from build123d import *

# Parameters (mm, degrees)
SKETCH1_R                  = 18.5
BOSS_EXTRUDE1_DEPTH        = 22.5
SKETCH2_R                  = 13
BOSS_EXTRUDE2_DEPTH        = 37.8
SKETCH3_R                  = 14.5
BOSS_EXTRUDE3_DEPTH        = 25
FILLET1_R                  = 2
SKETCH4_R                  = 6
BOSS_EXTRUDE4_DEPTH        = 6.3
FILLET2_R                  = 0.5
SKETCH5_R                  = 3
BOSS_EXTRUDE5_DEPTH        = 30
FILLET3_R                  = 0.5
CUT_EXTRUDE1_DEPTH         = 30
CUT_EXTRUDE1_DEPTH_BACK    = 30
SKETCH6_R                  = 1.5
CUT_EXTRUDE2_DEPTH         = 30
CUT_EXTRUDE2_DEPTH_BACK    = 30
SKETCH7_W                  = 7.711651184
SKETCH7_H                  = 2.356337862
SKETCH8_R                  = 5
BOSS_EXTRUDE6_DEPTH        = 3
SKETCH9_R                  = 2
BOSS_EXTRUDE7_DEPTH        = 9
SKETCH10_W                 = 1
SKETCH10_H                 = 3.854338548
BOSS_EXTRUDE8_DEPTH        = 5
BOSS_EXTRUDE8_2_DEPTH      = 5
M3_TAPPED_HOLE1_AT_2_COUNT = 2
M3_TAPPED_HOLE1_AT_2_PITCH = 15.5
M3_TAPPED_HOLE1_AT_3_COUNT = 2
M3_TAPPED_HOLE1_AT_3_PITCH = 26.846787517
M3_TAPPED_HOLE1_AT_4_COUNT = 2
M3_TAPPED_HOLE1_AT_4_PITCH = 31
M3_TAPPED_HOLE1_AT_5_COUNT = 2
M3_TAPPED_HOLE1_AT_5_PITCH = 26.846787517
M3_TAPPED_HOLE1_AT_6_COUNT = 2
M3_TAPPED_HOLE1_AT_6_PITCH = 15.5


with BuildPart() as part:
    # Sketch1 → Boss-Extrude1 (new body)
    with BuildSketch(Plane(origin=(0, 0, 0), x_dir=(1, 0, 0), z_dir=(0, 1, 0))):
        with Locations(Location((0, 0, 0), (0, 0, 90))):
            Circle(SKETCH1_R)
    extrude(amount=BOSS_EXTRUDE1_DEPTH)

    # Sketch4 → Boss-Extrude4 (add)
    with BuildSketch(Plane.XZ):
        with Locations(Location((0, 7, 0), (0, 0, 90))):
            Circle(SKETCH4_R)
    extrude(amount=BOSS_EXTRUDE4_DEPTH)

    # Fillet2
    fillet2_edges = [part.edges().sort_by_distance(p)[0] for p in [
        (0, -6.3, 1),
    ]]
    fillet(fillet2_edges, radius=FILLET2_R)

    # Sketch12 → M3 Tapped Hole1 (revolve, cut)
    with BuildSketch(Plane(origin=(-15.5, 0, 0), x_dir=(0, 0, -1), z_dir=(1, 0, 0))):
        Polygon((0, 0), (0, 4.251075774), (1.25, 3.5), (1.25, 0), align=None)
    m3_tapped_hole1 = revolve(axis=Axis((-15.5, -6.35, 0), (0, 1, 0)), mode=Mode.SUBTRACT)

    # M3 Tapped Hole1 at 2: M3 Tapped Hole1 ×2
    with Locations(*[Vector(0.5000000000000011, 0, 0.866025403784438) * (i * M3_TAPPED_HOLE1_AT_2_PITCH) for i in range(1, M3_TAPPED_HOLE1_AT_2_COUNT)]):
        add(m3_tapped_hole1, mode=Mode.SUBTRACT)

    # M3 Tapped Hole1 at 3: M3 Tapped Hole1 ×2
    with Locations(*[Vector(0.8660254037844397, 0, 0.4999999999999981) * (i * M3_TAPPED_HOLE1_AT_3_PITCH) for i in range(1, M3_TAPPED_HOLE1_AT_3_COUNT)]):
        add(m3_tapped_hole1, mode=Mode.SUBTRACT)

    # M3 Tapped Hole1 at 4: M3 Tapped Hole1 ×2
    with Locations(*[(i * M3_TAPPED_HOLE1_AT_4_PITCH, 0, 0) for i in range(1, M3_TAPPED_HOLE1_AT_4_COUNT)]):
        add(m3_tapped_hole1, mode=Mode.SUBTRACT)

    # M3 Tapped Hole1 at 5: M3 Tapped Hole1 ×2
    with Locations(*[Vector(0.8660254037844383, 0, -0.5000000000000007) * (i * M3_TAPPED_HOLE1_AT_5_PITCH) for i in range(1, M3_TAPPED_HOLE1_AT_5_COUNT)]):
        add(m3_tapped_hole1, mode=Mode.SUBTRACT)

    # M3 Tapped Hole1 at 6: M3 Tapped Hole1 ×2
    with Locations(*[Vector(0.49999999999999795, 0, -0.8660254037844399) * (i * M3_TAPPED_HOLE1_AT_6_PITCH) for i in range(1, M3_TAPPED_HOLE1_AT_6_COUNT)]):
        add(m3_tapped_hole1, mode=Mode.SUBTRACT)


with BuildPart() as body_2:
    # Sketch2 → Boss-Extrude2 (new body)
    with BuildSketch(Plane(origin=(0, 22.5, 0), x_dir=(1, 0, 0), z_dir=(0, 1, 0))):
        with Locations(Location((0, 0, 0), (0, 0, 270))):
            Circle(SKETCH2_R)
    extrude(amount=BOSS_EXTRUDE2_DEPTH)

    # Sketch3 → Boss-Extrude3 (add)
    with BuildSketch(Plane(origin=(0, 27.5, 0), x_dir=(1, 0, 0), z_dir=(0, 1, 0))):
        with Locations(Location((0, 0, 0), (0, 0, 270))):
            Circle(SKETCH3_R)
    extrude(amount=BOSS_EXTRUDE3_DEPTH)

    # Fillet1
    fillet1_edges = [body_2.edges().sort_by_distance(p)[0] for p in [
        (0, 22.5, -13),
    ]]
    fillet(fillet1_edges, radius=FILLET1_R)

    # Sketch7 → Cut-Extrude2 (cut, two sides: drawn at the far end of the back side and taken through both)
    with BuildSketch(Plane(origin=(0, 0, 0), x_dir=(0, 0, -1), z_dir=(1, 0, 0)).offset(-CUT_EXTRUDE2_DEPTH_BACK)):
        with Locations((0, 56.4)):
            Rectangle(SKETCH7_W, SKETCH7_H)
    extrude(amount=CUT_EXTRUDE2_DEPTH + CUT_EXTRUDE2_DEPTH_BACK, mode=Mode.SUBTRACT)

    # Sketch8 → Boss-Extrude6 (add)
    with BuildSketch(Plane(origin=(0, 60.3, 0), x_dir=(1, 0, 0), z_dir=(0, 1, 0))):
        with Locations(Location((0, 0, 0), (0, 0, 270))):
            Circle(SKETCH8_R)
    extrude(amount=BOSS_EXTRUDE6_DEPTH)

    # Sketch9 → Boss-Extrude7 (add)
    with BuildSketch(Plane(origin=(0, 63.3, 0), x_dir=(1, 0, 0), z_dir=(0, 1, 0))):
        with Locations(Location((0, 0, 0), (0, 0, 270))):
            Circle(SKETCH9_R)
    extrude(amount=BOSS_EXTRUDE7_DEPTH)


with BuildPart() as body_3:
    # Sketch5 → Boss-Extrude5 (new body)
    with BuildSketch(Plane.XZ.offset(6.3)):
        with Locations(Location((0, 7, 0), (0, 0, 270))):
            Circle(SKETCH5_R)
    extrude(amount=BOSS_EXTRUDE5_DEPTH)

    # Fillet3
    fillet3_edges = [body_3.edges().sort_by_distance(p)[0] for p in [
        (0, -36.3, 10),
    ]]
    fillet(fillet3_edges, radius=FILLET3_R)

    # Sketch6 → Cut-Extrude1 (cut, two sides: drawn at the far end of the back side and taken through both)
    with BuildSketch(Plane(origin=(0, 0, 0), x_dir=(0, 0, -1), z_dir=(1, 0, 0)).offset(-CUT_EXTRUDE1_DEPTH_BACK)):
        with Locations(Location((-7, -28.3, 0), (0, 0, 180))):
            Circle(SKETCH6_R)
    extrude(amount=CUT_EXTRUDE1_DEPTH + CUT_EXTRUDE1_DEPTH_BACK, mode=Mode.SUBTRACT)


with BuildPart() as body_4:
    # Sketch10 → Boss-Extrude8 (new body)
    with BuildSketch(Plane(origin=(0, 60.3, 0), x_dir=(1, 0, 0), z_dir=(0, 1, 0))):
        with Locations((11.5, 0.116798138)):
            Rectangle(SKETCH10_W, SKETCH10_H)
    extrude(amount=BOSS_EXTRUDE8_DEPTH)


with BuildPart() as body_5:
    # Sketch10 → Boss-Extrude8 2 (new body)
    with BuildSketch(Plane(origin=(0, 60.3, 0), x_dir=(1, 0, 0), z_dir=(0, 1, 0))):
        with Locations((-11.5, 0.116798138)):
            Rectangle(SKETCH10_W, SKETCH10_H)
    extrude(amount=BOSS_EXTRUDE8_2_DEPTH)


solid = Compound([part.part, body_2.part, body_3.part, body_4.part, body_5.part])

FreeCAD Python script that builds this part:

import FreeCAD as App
import Part
import Sketcher

V = App.Vector
Q = App.Units.Quantity


def edges_at(feature, points):
    """Names of the edges that pass closest to the given points."""
    edges = feature.Shape.Edges
    near = lambda p: min(range(len(edges)), key=lambda i: edges[i].distToShape(Part.Vertex(*p))[0])
    return sorted({f"Edge{near(p) + 1}" for p in points})

doc = App.newDocument("Part")
body = doc.addObject("PartDesign::Body", "Body")

sketch1 = doc.addObject("Sketcher::SketchObject", "Sketch")
body.addObject(sketch1)
sketch1.AttachmentSupport = (doc.XZ_Plane, [""])
sketch1.MapMode = "FlatFace"
sketch1.addGeometry(Part.Circle(V(0, 0, 0), V(0, 0, 1), 18), False)
sketch1.addConstraint([
    Sketcher.Constraint("Coincident", 0, 3, -1, 1),
    Sketcher.Constraint("Diameter", 0, 37.0),
])
pad1 = doc.addObject("PartDesign::Pad", "Pad")
body.addObject(pad1)
pad1.Profile = sketch1
pad1.Length = 22.5
pad1.Reversed = True

sketch2 = doc.addObject("Sketcher::SketchObject", "Sketch001")
body.addObject(sketch2)
sketch2.AttachmentSupport = (doc.XZ_Plane, [""])
sketch2.MapMode = "FlatFace"
sketch2.addGeometry(Part.Circle(V(0, 7, 0), V(0, 0, 1), 6), False)
sketch2.addConstraint([
    Sketcher.Constraint("PointOnObject", 0, 3, -2),
    Sketcher.Constraint("Diameter", 0, 12.0),
    Sketcher.Constraint("DistanceY", -1, 1, 0, 3, 7.0),
])
pad2 = doc.addObject("PartDesign::Pad", "Pad001")
body.addObject(pad2)
pad2.Profile = sketch2
pad2.Length = 6.3
doc.recompute()

fillet = doc.addObject("PartDesign::Fillet", "Fillet")
body.addObject(fillet)
fillet.Base = (pad2, edges_at(pad2, [(0, -6.3, 1)]))
fillet.Radius = 0.5

sketch3 = doc.addObject("Sketcher::SketchObject", "Sketch002")
body.addObject(sketch3)
sketch3.AttachmentSupport = (doc.YZ_Plane, [""])
sketch3.MapMode = "FlatFace"
sketch3.AttachmentOffset = App.Placement(V(0, 0, -15.5), App.Rotation())
sketch3.addGeometry([
    Part.LineSegment(V(4.3, 0, 0), V(0, 0, 0)),
    Part.LineSegment(V(0, 0, 0), V(0, -1.2, 0)),
    Part.LineSegment(V(0, -1.2, 0), V(3.5, -1.2, 0)),
    Part.LineSegment(V(3.5, -1.2, 0), V(4.3, 0, 0)),
], False)
sketch3.addConstraint([
    Sketcher.Constraint("Coincident", 0, 2, 1, 1),
    Sketcher.Constraint("Coincident", 1, 2, 2, 1),
    Sketcher.Constraint("Coincident", 2, 2, 3, 1),
    Sketcher.Constraint("Coincident", 3, 2, 0, 1),
    Sketcher.Constraint("Horizontal", 0),
    Sketcher.Constraint("Vertical", 1),
    Sketcher.Constraint("Horizontal", 2),
    Sketcher.Constraint("Coincident", 0, 2, -1, 1),
    Sketcher.Constraint("Angle", 3, Q("59 deg")),
    Sketcher.Constraint("DistanceX", 2, 1, 2, 2, 3.5),
    Sketcher.Constraint("DistanceY", 1, 2, 1, 1, 1.25),
])
groove = doc.addObject("PartDesign::Groove", "Groove")
body.addObject(groove)
groove.Profile = sketch3
groove.ReferenceAxis = (sketch3, ["H_Axis"])
groove.Angle = 360
doc.recompute()

datumline = doc.addObject("PartDesign::Line", "DatumLine")
body.addObject(datumline)
datumline.Placement = App.Placement(V(0, 0, 0), App.Rotation(V(0, 0, 1), V(0.5, 0, 0.866025404)))
linearpattern = doc.addObject("PartDesign::LinearPattern", "LinearPattern")
body.addObject(linearpattern)
linearpattern.Originals = [groove]
linearpattern.Direction = (datumline, [""])
linearpattern.Mode = "offset"
linearpattern.Offset = 15.5
linearpattern.Occurrences = 2
body.Tip = linearpattern
doc.recompute()

datumline2 = doc.addObject("PartDesign::Line", "DatumLine001")
body.addObject(datumline2)
datumline2.Placement = App.Placement(V(0, 0, 0), App.Rotation(V(0, 0, 1), V(0.866025404, 0, 0.5)))
linearpattern2 = doc.addObject("PartDesign::LinearPattern", "LinearPattern001")
body.addObject(linearpattern2)
linearpattern2.Originals = [groove]
linearpattern2.Direction = (datumline2, [""])
linearpattern2.Mode = "offset"
linearpattern2.Offset = 26.846788
linearpattern2.Occurrences = 2
body.Tip = linearpattern2
doc.recompute()

linearpattern3 = doc.addObject("PartDesign::LinearPattern", "LinearPattern002")
body.addObject(linearpattern3)
linearpattern3.Originals = [groove]
linearpattern3.Direction = (doc.X_Axis, [""])
linearpattern3.Mode = "offset"
linearpattern3.Offset = 31
linearpattern3.Occurrences = 2
body.Tip = linearpattern3
doc.recompute()

datumline3 = doc.addObject("PartDesign::Line", "DatumLine002")
body.addObject(datumline3)
datumline3.Placement = App.Placement(V(0, 0, 0), App.Rotation(V(0, 0, 1), V(0.866025404, 0, -0.5)))
linearpattern4 = doc.addObject("PartDesign::LinearPattern", "LinearPattern003")
body.addObject(linearpattern4)
linearpattern4.Originals = [groove]
linearpattern4.Direction = (datumline3, [""])
linearpattern4.Mode = "offset"
linearpattern4.Offset = 26.846788
linearpattern4.Occurrences = 2
body.Tip = linearpattern4
doc.recompute()

datumline4 = doc.addObject("PartDesign::Line", "DatumLine003")
body.addObject(datumline4)
datumline4.Placement = App.Placement(V(0, 0, 0), App.Rotation(V(0, 0, 1), V(0.5, 0, -0.866025404)))
linearpattern5 = doc.addObject("PartDesign::LinearPattern", "LinearPattern004")
body.addObject(linearpattern5)
linearpattern5.Originals = [groove]
linearpattern5.Direction = (datumline4, [""])
linearpattern5.Mode = "offset"
linearpattern5.Offset = 15.5
linearpattern5.Occurrences = 2
body.Tip = linearpattern5
body2 = doc.addObject("PartDesign::Body", "Body001")

sketch4 = doc.addObject("Sketcher::SketchObject", "Sketch003")
body2.addObject(sketch4)
sketch4.AttachmentSupport = (doc.getObject("XZ_Plane001"), [""])
sketch4.MapMode = "FlatFace"
sketch4.AttachmentOffset = App.Placement(V(0, 0, -22.5), App.Rotation())
sketch4.addGeometry(Part.Circle(V(0, 0, 0), V(0, 0, 1), 13), False)
sketch4.addConstraint([
    Sketcher.Constraint("Coincident", 0, 3, -1, 1),
    Sketcher.Constraint("Diameter", 0, 26.0),
])
pad3 = doc.addObject("PartDesign::Pad", "Pad002")
body2.addObject(pad3)
pad3.Profile = sketch4
pad3.Length = 37.8
pad3.Reversed = True

sketch5 = doc.addObject("Sketcher::SketchObject", "Sketch004")
body2.addObject(sketch5)
sketch5.AttachmentSupport = (doc.getObject("XZ_Plane001"), [""])
sketch5.MapMode = "FlatFace"
sketch5.AttachmentOffset = App.Placement(V(0, 0, -27.5), App.Rotation())
sketch5.addGeometry(Part.Circle(V(0, 0, 0), V(0, 0, 1), 14), False)
sketch5.addConstraint([
    Sketcher.Constraint("Coincident", 0, 3, -1, 1),
    Sketcher.Constraint("Diameter", 0, 29.0),
])
pad4 = doc.addObject("PartDesign::Pad", "Pad003")
body2.addObject(pad4)
pad4.Profile = sketch5
pad4.Length = 25
pad4.Reversed = True
doc.recompute()

fillet2 = doc.addObject("PartDesign::Fillet", "Fillet001")
body2.addObject(fillet2)
fillet2.Base = (pad4, edges_at(pad4, [(0, 22.5, -13)]))
fillet2.Radius = 2

sketch6 = doc.addObject("Sketcher::SketchObject", "Sketch005")
body2.addObject(sketch6)
sketch6.AttachmentSupport = (doc.getObject("YZ_Plane001"), [""])
sketch6.MapMode = "FlatFace"
sketch6.addGeometry([
    Part.LineSegment(V(57.6, 3.9, 0), V(55.2, 3.9, 0)),
    Part.LineSegment(V(55.2, 3.9, 0), V(55.2, -3.9, 0)),
    Part.LineSegment(V(55.2, -3.9, 0), V(57.6, -3.9, 0)),
    Part.LineSegment(V(57.6, -3.9, 0), V(57.6, 3.9, 0)),
], False)
sketch6.addConstraint([
    Sketcher.Constraint("Coincident", 0, 2, 1, 1),
    Sketcher.Constraint("Coincident", 1, 2, 2, 1),
    Sketcher.Constraint("Coincident", 2, 2, 3, 1),
    Sketcher.Constraint("Coincident", 3, 2, 0, 1),
    Sketcher.Constraint("Horizontal", 0),
    Sketcher.Constraint("Vertical", 1),
    Sketcher.Constraint("Horizontal", 2),
    Sketcher.Constraint("Vertical", 3),
    Sketcher.Constraint("DistanceY", 1, 2, 1, 1, 7.711651),
    Sketcher.Constraint("DistanceX", 0, 2, 0, 1, 2.356338),
    Sketcher.Constraint("DistanceX", -1, 1, 0, 2, 55.221831),
    Sketcher.Constraint("DistanceY", -1, 1, 0, 2, 3.855826),
])
pocket1 = doc.addObject("PartDesign::Pocket", "Pocket")
body2.addObject(pocket1)
pocket1.Profile = sketch6
pocket1.Type = "ThroughAll"
pocket1.Midplane = True

sketch7 = doc.addObject("Sketcher::SketchObject", "Sketch006")
body2.addObject(sketch7)
sketch7.AttachmentSupport = (doc.getObject("XZ_Plane001"), [""])
sketch7.MapMode = "FlatFace"
sketch7.AttachmentOffset = App.Placement(V(0, 0, -60.3), App.Rotation())
sketch7.addGeometry(Part.Circle(V(0, 0, 0), V(0, 0, 1), 5), False)
sketch7.addConstraint([
    Sketcher.Constraint("Coincident", 0, 3, -1, 1),
    Sketcher.Constraint("Diameter", 0, 10.0),
])
pad5 = doc.addObject("PartDesign::Pad", "Pad004")
body2.addObject(pad5)
pad5.Profile = sketch7
pad5.Length = 3
pad5.Reversed = True

sketch8 = doc.addObject("Sketcher::SketchObject", "Sketch007")
body2.addObject(sketch8)
sketch8.AttachmentSupport = (doc.getObject("XZ_Plane001"), [""])
sketch8.MapMode = "FlatFace"
sketch8.AttachmentOffset = App.Placement(V(0, 0, -63.3), App.Rotation())
sketch8.addGeometry(Part.Circle(V(0, 0, 0), V(0, 0, 1), 2), False)
sketch8.addConstraint([
    Sketcher.Constraint("Coincident", 0, 3, -1, 1),
    Sketcher.Constraint("Diameter", 0, 4.0),
])
pad6 = doc.addObject("PartDesign::Pad", "Pad005")
body2.addObject(pad6)
pad6.Profile = sketch8
pad6.Length = 9
pad6.Reversed = True
body3 = doc.addObject("PartDesign::Body", "Body002")

sketch9 = doc.addObject("Sketcher::SketchObject", "Sketch008")
body3.addObject(sketch9)
sketch9.AttachmentSupport = (doc.getObject("XZ_Plane002"), [""])
sketch9.MapMode = "FlatFace"
sketch9.AttachmentOffset = App.Placement(V(0, 0, 6.3), App.Rotation())
sketch9.addGeometry(Part.Circle(V(0, 7, 0), V(0, 0, 1), 3), False)
sketch9.addConstraint([
    Sketcher.Constraint("PointOnObject", 0, 3, -2),
    Sketcher.Constraint("Diameter", 0, 6.0),
    Sketcher.Constraint("DistanceY", -1, 1, 0, 3, 7.0),
])
pad7 = doc.addObject("PartDesign::Pad", "Pad006")
body3.addObject(pad7)
pad7.Profile = sketch9
pad7.Length = 30
doc.recompute()

fillet3 = doc.addObject("PartDesign::Fillet", "Fillet002")
body3.addObject(fillet3)
fillet3.Base = (pad7, edges_at(pad7, [(0, -36.3, 10)]))
fillet3.Radius = 0.5

sketch10 = doc.addObject("Sketcher::SketchObject", "Sketch009")
body3.addObject(sketch10)
sketch10.AttachmentSupport = (doc.getObject("YZ_Plane002"), [""])
sketch10.MapMode = "FlatFace"
sketch10.addGeometry(Part.Circle(V(-28.3, 7, 0), V(0, 0, 1), 1.5), False)
sketch10.addConstraint([
    Sketcher.Constraint("Diameter", 0, 3.0),
    Sketcher.Constraint("DistanceY", -1, 1, 0, 3, 7.0),
    Sketcher.Constraint("DistanceX", 0, 3, -1, 1, 28.3),
])
pocket2 = doc.addObject("PartDesign::Pocket", "Pocket001")
body3.addObject(pocket2)
pocket2.Profile = sketch10
pocket2.Type = "ThroughAll"
pocket2.Midplane = True
body4 = doc.addObject("PartDesign::Body", "Body003")

sketch11 = doc.addObject("Sketcher::SketchObject", "Sketch010")
body4.addObject(sketch11)
sketch11.AttachmentSupport = (doc.getObject("XZ_Plane003"), [""])
sketch11.MapMode = "FlatFace"
sketch11.AttachmentOffset = App.Placement(V(0, 0, -60.3), App.Rotation())
sketch11.addGeometry([
    Part.LineSegment(V(11, -2, 0), V(11, 1.8, 0)),
    Part.LineSegment(V(11, 1.8, 0), V(12, 1.8, 0)),
    Part.LineSegment(V(12, 1.8, 0), V(12, -2, 0)),
    Part.LineSegment(V(12, -2, 0), V(11, -2, 0)),
], False)
sketch11.addConstraint([
    Sketcher.Constraint("Coincident", 0, 2, 1, 1),
    Sketcher.Constraint("Coincident", 1, 2, 2, 1),
    Sketcher.Constraint("Coincident", 2, 2, 3, 1),
    Sketcher.Constraint("Coincident", 3, 2, 0, 1),
    Sketcher.Constraint("Vertical", 0),
    Sketcher.Constraint("Horizontal", 1),
    Sketcher.Constraint("Vertical", 2),
    Sketcher.Constraint("Horizontal", 3),
    Sketcher.Constraint("DistanceX", 1, 1, 1, 2, 1.0),
    Sketcher.Constraint("DistanceX", -1, 1, 0, 2, 11.0),
    Sketcher.Constraint("DistanceY", 0, 1, 0, 2, 3.854339),
    Sketcher.Constraint("DistanceY", -1, 1, 0, 2, 1.810371),
])
pad8 = doc.addObject("PartDesign::Pad", "Pad007")
body4.addObject(pad8)
pad8.Profile = sketch11
pad8.Length = 5
pad8.Reversed = True
body5 = doc.addObject("PartDesign::Body", "Body004")

sketch12 = doc.addObject("Sketcher::SketchObject", "Sketch011")
body5.addObject(sketch12)
sketch12.AttachmentSupport = (doc.getObject("XZ_Plane004"), [""])
sketch12.MapMode = "FlatFace"
sketch12.AttachmentOffset = App.Placement(V(0, 0, -60.3), App.Rotation())
sketch12.addGeometry([
    Part.LineSegment(V(-12, -2, 0), V(-12, 1.8, 0)),
    Part.LineSegment(V(-12, 1.8, 0), V(-11, 1.8, 0)),
    Part.LineSegment(V(-11, 1.8, 0), V(-11, -2, 0)),
    Part.LineSegment(V(-11, -2, 0), V(-12, -2, 0)),
], False)
sketch12.addConstraint([
    Sketcher.Constraint("Coincident", 0, 2, 1, 1),
    Sketcher.Constraint("Coincident", 1, 2, 2, 1),
    Sketcher.Constraint("Coincident", 2, 2, 3, 1),
    Sketcher.Constraint("Coincident", 3, 2, 0, 1),
    Sketcher.Constraint("Vertical", 0),
    Sketcher.Constraint("Horizontal", 1),
    Sketcher.Constraint("Vertical", 2),
    Sketcher.Constraint("Horizontal", 3),
    Sketcher.Constraint("DistanceX", 1, 1, 1, 2, 1.0),
    Sketcher.Constraint("DistanceX", 0, 2, -1, 1, 12.0),
    Sketcher.Constraint("DistanceY", 0, 1, 0, 2, 3.854339),
    Sketcher.Constraint("DistanceY", -1, 1, 0, 2, 1.810371),
])
pad9 = doc.addObject("PartDesign::Pad", "Pad008")
body5.addObject(pad9)
pad9.Profile = sketch12
pad9.Length = 5
pad9.Reversed = True

doc.recompute()
